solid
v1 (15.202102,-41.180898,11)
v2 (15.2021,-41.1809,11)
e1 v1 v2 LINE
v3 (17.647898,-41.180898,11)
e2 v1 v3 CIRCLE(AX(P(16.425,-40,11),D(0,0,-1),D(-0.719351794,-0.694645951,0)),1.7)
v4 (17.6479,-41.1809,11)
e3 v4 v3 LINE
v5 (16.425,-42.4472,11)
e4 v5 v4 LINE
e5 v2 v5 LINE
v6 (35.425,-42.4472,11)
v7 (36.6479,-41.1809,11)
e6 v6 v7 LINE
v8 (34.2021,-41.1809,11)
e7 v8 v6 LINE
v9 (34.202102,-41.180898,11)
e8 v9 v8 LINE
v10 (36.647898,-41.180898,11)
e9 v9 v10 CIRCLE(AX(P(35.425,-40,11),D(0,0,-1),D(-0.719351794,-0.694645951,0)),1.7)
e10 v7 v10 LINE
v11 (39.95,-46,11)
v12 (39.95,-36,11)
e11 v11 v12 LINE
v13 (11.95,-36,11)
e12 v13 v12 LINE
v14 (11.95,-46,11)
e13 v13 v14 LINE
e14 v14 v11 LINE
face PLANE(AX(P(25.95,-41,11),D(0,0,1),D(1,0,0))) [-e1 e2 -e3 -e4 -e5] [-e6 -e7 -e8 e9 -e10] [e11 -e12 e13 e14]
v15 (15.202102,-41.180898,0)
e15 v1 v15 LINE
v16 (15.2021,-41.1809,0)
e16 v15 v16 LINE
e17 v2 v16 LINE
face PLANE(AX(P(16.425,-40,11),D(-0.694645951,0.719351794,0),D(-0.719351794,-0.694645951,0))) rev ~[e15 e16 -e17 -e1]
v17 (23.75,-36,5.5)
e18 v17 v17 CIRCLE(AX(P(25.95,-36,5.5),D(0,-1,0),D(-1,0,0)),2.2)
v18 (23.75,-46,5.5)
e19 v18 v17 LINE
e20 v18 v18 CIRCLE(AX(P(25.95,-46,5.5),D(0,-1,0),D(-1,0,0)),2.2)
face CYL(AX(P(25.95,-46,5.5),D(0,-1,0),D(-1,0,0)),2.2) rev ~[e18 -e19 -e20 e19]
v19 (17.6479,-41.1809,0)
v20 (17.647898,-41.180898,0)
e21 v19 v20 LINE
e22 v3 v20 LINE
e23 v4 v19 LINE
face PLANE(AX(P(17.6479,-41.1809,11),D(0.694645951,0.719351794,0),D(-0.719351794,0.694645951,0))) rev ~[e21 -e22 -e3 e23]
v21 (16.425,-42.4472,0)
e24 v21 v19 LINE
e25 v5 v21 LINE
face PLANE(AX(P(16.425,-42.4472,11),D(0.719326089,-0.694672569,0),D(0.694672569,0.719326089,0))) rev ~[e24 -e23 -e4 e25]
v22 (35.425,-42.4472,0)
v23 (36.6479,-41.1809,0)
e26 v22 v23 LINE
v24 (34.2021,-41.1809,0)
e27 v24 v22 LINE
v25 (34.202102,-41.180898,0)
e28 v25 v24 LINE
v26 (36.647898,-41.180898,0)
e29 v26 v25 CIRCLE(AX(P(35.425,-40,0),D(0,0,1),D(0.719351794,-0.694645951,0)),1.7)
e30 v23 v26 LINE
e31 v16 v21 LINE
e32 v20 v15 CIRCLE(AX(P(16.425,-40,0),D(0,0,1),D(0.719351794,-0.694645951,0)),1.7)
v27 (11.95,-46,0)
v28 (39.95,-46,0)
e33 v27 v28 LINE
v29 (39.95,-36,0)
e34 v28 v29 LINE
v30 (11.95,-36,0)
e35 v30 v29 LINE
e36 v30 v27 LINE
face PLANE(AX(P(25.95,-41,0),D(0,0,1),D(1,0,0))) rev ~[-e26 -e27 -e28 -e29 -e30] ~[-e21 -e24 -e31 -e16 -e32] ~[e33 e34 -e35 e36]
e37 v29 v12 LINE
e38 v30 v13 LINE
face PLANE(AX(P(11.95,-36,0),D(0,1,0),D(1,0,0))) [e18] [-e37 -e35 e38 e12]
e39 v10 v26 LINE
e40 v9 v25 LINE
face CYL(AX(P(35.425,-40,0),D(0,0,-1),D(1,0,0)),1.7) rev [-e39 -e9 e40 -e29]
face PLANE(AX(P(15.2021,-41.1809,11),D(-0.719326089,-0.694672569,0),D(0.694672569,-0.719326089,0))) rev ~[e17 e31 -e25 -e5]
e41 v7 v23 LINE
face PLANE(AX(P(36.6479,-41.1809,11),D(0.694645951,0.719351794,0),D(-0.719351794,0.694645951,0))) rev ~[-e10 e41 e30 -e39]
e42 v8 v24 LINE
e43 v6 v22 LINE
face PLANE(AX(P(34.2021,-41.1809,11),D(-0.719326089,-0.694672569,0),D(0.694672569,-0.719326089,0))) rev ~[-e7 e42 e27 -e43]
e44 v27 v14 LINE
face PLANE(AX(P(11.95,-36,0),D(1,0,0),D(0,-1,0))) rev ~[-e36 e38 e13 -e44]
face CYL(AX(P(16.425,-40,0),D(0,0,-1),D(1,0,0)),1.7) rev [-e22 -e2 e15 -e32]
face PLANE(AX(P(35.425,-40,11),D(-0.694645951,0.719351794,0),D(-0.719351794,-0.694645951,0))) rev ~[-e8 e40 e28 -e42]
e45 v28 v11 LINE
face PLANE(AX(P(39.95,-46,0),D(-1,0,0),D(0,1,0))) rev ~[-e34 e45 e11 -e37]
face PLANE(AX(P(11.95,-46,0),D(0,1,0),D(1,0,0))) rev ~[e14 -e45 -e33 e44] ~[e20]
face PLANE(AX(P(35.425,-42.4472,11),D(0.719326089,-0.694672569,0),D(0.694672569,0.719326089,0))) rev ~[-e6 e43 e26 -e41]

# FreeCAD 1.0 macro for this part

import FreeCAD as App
import Part
import Sketcher
from FreeCAD import Vector
Q = App.Units.Quantity


def add_polygon(sketch, points):
    """Adds a closed chain of lines whose ends are joined by coincident constraints."""
    first, n = sketch.GeometryCount, len(points)
    for a, b in zip(points, points[1:] + points[:1]):
        sketch.addGeometry(Part.LineSegment(App.Vector(*a, 0), App.Vector(*b, 0)), False)
    for i in range(n):
        sketch.addConstraint(Sketcher.Constraint("Coincident", first + i, 2, first + (i + 1) % n, 1))

doc = App.newDocument("Part")
body = doc.addObject("PartDesign::Body", "Body")

# Sketch on XY plane
sketch1 = body.newObject("Sketcher::SketchObject", "Sketch")
sketch1.AttachmentSupport = (doc.getObject("XY_Plane"), [""])
sketch1.MapMode = "FlatFace"
add_polygon(sketch1, [(11.9, -36), (11.9, -46), (40, -46), (40, -36)])  # lines 0-3
sketch1.addGeometry(Part.Circle(Vector(16.4, -40, 0), Vector(0, 0, 1), 1.7), False)  # 4
sketch1.addGeometry(Part.Circle(Vector(35.4, -40, 0), Vector(0, 0, 1), 1.7), False)  # 5
sketch1.addConstraint(Sketcher.Constraint("Vertical", 0))
sketch1.addConstraint(Sketcher.Constraint("Horizontal", 1))
sketch1.addConstraint(Sketcher.Constraint("Vertical", 2))
sketch1.addConstraint(Sketcher.Constraint("Horizontal", 3))
sketch1.addConstraint(Sketcher.Constraint("Equal", 4, 5))
sketch1.addConstraint(Sketcher.Constraint("Horizontal", 4, 3, 5, 3))
sketch1.addConstraint(Sketcher.Constraint("Diameter", 4, 3.4))
sketch1.addConstraint(Sketcher.Constraint("DistanceX", 1, 1, 1, 2, 28.0))
sketch1.addConstraint(Sketcher.Constraint("DistanceY", 0, 2, 0, 1, 10.0))
sketch1.addConstraint(Sketcher.Constraint("DistanceY", 4, 3, -1, 1, 40.0))
sketch1.addConstraint(Sketcher.Constraint("DistanceY", 0, 2, -1, 1, 46.0))
sketch1.addConstraint(Sketcher.Constraint("DistanceX", 4, 3, 5, 3, 19.0))
sketch1.addConstraint(Sketcher.Constraint("DistanceX", -1, 1, 0, 2, 11.95))
sketch1.addConstraint(Sketcher.Constraint("DistanceX", -1, 1, 4, 3, 16.425))
pad1 = body.newObject("PartDesign::Pad", "Pad")
pad1.Profile = sketch1
pad1.Length = 11

# Sketch on XZ plane
sketch2 = body.newObject("Sketcher::SketchObject", "Sketch001")
sketch2.AttachmentSupport = (doc.getObject("XZ_Plane"), [""])
sketch2.MapMode = "FlatFace"
sketch2.AttachmentOffset = App.Placement(Vector(0, 0, 46), App.Rotation())
sketch2.addGeometry(Part.Circle(Vector(25.9, 5.5, 0), Vector(0, 0, 1), 2.2), False)
sketch2.addConstraint(Sketcher.Constraint("Diameter", 0, 4.4))
sketch2.addConstraint(Sketcher.Constraint("DistanceY", -1, 1, 0, 3, 5.5))
sketch2.addConstraint(Sketcher.Constraint("DistanceX", -1, 1, 0, 3, 25.95))
pocket1 = body.newObject("PartDesign::Pocket", "Pocket")
pocket1.Profile = sketch2
pocket1.Type = "ThroughAll"

# Sketch on XY plane
sketch3 = body.newObject("Sketcher::SketchObject", "Sketch002")
sketch3.AttachmentSupport = (doc.getObject("XY_Plane"), [""])
sketch3.MapMode = "FlatFace"
sketch3.AttachmentOffset = App.Placement(Vector(0, 0, 11), App.Rotation())
add_polygon(sketch3, [(36.6, -41.2), (35.4, -40), (34.2, -41.2), (35.4, -42.4)])  # lines 0-3
add_polygon(sketch3, [(17.6, -41.2), (16.4, -40), (15.2, -41.2), (16.4, -42.4)])  # lines 4-7
sketch3.addConstraint(Sketcher.Constraint("Perpendicular", 1, 2))
sketch3.addConstraint(Sketcher.Constraint("Perpendicular", 0, 3))
sketch3.addConstraint(Sketcher.Constraint("Perpendicular", 3, 4))
sketch3.addConstraint(Sketcher.Constraint("Perpendicular", 2, 5))
sketch3.addConstraint(Sketcher.Constraint("Perpendicular", 5, 6))
sketch3.addConstraint(Sketcher.Constraint("Perpendicular", 4, 7))
sketch3.addConstraint(Sketcher.Constraint("Horizontal", 1, 2, 3, 2))
sketch3.addConstraint(Sketcher.Constraint("Horizontal", 0, 2, 4, 2))
sketch3.addConstraint(Sketcher.Constraint("Horizontal", 3, 2, 5, 2))
sketch3.addConstraint(Sketcher.Constraint("Horizontal", 2, 2, 6, 2))
sketch3.addConstraint(Sketcher.Constraint("Vertical", 0, 2, 2, 2))
sketch3.addConstraint(Sketcher.Constraint("Angle", 0, Q("136.001 deg")))
sketch3.addConstraint(Sketcher.Constraint("DistanceY", 0, 2, -1, 1, 40.0))
sketch3.addConstraint(Sketcher.Constraint("DistanceX", 4, 2, 0, 2, 19.0))
sketch3.addConstraint(Sketcher.Constraint("Distance", 0, 1.7))
sketch3.addConstraint(Sketcher.Constraint("DistanceX", -1, 1, 0, 2, 35.425))
pocket2 = body.newObject("PartDesign::Pocket", "Pocket001")
pocket2.Profile = sketch3
pocket2.Type = "ThroughAll"

doc.recompute()
